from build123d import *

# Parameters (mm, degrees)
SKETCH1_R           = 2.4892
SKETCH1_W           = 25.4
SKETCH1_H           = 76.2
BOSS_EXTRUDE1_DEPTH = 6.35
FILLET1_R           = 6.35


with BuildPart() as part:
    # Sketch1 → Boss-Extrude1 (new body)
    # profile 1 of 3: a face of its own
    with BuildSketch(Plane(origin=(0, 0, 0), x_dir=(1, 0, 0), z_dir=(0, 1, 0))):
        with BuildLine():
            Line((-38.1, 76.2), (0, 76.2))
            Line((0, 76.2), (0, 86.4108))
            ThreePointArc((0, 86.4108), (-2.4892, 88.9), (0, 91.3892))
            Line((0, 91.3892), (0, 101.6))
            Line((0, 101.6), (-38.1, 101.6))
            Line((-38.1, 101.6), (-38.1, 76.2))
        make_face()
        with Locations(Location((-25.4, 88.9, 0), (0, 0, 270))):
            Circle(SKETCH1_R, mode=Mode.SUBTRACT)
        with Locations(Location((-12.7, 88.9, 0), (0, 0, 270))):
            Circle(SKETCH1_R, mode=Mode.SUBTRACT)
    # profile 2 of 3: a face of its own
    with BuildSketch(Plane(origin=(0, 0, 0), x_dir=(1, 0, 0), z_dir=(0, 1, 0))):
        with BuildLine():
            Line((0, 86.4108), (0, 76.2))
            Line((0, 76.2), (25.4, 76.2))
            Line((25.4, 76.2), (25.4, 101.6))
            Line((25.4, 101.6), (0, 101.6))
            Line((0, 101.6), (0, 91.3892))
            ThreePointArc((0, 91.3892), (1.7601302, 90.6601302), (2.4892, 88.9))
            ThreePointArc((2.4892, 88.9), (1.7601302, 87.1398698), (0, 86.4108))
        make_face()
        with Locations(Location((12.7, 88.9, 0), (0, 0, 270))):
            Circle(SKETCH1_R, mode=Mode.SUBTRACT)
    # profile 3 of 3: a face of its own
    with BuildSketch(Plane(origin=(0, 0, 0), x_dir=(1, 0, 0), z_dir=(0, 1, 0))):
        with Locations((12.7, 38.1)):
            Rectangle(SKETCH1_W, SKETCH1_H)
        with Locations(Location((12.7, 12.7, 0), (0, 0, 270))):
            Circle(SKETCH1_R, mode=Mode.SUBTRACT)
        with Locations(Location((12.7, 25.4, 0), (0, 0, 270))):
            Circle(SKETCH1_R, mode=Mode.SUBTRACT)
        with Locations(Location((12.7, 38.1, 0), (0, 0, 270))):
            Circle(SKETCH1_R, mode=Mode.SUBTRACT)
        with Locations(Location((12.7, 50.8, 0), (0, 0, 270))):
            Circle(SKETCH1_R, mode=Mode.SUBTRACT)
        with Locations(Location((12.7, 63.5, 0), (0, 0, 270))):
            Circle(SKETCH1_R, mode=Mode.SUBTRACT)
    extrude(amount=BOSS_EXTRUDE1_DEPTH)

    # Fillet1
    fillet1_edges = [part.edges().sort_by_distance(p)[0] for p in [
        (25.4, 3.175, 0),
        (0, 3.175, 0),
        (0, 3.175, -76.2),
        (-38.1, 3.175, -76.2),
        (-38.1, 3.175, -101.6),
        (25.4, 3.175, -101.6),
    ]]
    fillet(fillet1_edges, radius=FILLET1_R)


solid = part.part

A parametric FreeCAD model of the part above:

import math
import FreeCAD as App
import Part
import Sketcher
Q = App.Units.Quantity


def edges_at(feature, points):
    """Names of the edges that pass closest to the given points."""
    edges = feature.Shape.Edges
    near = lambda p: min(range(len(edges)), key=lambda i: edges[i].distToShape(Part.Vertex(*p))[0])
    return sorted({f"Edge{near(p) + 1}" for p in points})


def add_polygon(sketch, points):
    """Adds a closed chain of lines whose ends are joined by coincident constraints."""
    first, n = sketch.GeometryCount, len(points)
    for a, b in zip(points, points[1:] + points[:1]):
        sketch.addGeometry(Part.LineSegment(App.Vector(*a, 0), App.Vector(*b, 0)), False)
    for i in range(n):
        sketch.addConstraint(Sketcher.Constraint("Coincident", first + i, 2, first + (i + 1) % n, 1))

doc = App.newDocument("Part")
body = doc.addObject("PartDesign::Body", "Body")

sketch1 = doc.addObject("Sketcher::SketchObject", "Sketch")
body.addObject(sketch1)
sketch1.AttachmentSupport = (doc.XZ_Plane, [""])
sketch1.MapMode = "FlatFace"
add_polygon(sketch1, [(-38.1, -76.2), (0, -76.2), (0, 0), (25.4, 0), (25.4, -101.6), (-38.1, -101.6)])
sketch1.addGeometry(Part.ArcOfCircle(Part.Circle(App.Vector(0, -88.9, 0), App.Vector(0, 0, 1), 2.5), math.radians(90), math.radians(270)), False)
sketch1.addGeometry(Part.ArcOfCircle(Part.Circle(App.Vector(0, -88.9, 0), App.Vector(0, 0, 1), 2.5), math.radians(-90), math.radians(0)), False)
sketch1.addGeometry(Part.ArcOfCircle(Part.Circle(App.Vector(0, -88.9, 0), App.Vector(0, 0, 1), 2.5), math.radians(0), math.radians(90)), False)
sketch1.addGeometry(Part.Circle(App.Vector(-25.4, -88.9, 0), App.Vector(0, 0, 1), 2.5), False)
sketch1.addGeometry(Part.Circle(App.Vector(-12.7, -88.9, 0), App.Vector(0, 0, 1), 2.5), False)
sketch1.addGeometry(Part.Circle(App.Vector(12.7, -88.9, 0), App.Vector(0, 0, 1), 2.5), False)
sketch1.addGeometry(Part.Circle(App.Vector(12.7, -63.5, 0), App.Vector(0, 0, 1), 2.5), False)
sketch1.addGeometry(Part.Circle(App.Vector(12.7, -12.7, 0), App.Vector(0, 0, 1), 2.5), False)
sketch1.addGeometry(Part.Circle(App.Vector(12.7, -25.4, 0), App.Vector(0, 0, 1), 2.5), False)
sketch1.addGeometry(Part.Circle(App.Vector(12.7, -38.1, 0), App.Vector(0, 0, 1), 2.5), False)
sketch1.addGeometry(Part.Circle(App.Vector(12.7, -50.8, 0), App.Vector(0, 0, 1), 2.5), False)
sketch1.addConstraint([
    Sketcher.Constraint("Tangent", 6, 2, 7, 1),
    Sketcher.Constraint("Tangent", 7, 2, 8, 1),
    Sketcher.Constraint("Tangent", 8, 2, 6, 1),
    Sketcher.Constraint("Horizontal", 0),
    Sketcher.Constraint("Vertical", 1),
    Sketcher.Constraint("Horizontal", 2),
    Sketcher.Constraint("Vertical", 3),
    Sketcher.Constraint("Horizontal", 4),
    Sketcher.Constraint("Vertical", 5),
    Sketcher.Constraint("Coincident", 1, 2, -1, 1),
    Sketcher.Constraint("Equal", 8, 9),
    Sketcher.Constraint("Equal", 9, 10),
    Sketcher.Constraint("Equal", 10, 11),
    Sketcher.Constraint("Equal", 11, 12),
    Sketcher.Constraint("Equal", 12, 13),
    Sketcher.Constraint("Equal", 13, 14),
    Sketcher.Constraint("Equal", 14, 15),
    Sketcher.Constraint("Equal", 15, 16),
    Sketcher.Constraint("Symmetric", 10, 3, 11, 3, -2),
    Sketcher.Constraint("PointOnObject", 6, 3, -2),
    Sketcher.Constraint("PointOnObject", 6, 2, -2),
    Sketcher.Constraint("PointOnObject", 8, 2, -2),
    Sketcher.Constraint("Horizontal", 8, 3, 9, 3),
    Sketcher.Constraint("Horizontal", 9, 3, 10, 3),
    Sketcher.Constraint("Horizontal", 11, 3, 7, 2),
    Sketcher.Constraint("Vertical", 11, 3, 12, 3),
    Sketcher.Constraint("Vertical", 12, 3, 13, 3),
    Sketcher.Constraint("Vertical", 13, 3, 14, 3),
    Sketcher.Constraint("Vertical", 14, 3, 15, 3),
    Sketcher.Constraint("Vertical", 15, 3, 16, 3),
    Sketcher.Constraint("Equal", 2, 5),
    Sketcher.Constraint("DistanceX", 2, 1, 2, 2, Q("1 in")),
    Sketcher.Constraint("DistanceY", 1, 1, 1, 2, Q("3 in")),
    Sketcher.Constraint("Diameter", 9, Q("0.196 in")),
    Sketcher.Constraint("DistanceX", 0, 1, 0, 2, Q("1.5 in")),
    Sketcher.Constraint("DistanceX", 9, 3, -1, 1, Q("1 in")),
    Sketcher.Constraint("DistanceY", 14, 3, -1, 1, Q("1 in")),
    Sketcher.Constraint("DistanceY", 16, 3, -1, 1, Q("2 in")),
    Sketcher.Constraint("DistanceX", 10, 3, 11, 3, Q("1 in")),
    Sketcher.Constraint("DistanceY", 11, 3, 12, 3, Q("1 in")),
    Sketcher.Constraint("DistanceY", 12, 3, 13, 3, Q("2 in")),
    Sketcher.Constraint("DistanceY", 12, 3, 15, 3, Q("1 in")),
    Sketcher.Constraint("DistanceY", 6, 3, -1, 1, Q("3.5 in")),
])
pad1 = doc.addObject("PartDesign::Pad", "Pad")
body.addObject(pad1)
pad1.Profile = sketch1
pad1.Length = Q("0.25 in")
pad1.Reversed = True
doc.recompute()

fillet = doc.addObject("PartDesign::Fillet", "Fillet")
body.addObject(fillet)
fillet.Base = (pad1, edges_at(pad1, [
    (25.4, 3.175, 0),
    (0, 3.175, 0),
    (0, 3.175, -76.2),
    (-38.1, 3.175, -76.2),
    (-38.1, 3.175, -101.6),
    (25.4, 3.175, -101.6),
]))
fillet.Radius = Q("0.25 in")

doc.recompute()
